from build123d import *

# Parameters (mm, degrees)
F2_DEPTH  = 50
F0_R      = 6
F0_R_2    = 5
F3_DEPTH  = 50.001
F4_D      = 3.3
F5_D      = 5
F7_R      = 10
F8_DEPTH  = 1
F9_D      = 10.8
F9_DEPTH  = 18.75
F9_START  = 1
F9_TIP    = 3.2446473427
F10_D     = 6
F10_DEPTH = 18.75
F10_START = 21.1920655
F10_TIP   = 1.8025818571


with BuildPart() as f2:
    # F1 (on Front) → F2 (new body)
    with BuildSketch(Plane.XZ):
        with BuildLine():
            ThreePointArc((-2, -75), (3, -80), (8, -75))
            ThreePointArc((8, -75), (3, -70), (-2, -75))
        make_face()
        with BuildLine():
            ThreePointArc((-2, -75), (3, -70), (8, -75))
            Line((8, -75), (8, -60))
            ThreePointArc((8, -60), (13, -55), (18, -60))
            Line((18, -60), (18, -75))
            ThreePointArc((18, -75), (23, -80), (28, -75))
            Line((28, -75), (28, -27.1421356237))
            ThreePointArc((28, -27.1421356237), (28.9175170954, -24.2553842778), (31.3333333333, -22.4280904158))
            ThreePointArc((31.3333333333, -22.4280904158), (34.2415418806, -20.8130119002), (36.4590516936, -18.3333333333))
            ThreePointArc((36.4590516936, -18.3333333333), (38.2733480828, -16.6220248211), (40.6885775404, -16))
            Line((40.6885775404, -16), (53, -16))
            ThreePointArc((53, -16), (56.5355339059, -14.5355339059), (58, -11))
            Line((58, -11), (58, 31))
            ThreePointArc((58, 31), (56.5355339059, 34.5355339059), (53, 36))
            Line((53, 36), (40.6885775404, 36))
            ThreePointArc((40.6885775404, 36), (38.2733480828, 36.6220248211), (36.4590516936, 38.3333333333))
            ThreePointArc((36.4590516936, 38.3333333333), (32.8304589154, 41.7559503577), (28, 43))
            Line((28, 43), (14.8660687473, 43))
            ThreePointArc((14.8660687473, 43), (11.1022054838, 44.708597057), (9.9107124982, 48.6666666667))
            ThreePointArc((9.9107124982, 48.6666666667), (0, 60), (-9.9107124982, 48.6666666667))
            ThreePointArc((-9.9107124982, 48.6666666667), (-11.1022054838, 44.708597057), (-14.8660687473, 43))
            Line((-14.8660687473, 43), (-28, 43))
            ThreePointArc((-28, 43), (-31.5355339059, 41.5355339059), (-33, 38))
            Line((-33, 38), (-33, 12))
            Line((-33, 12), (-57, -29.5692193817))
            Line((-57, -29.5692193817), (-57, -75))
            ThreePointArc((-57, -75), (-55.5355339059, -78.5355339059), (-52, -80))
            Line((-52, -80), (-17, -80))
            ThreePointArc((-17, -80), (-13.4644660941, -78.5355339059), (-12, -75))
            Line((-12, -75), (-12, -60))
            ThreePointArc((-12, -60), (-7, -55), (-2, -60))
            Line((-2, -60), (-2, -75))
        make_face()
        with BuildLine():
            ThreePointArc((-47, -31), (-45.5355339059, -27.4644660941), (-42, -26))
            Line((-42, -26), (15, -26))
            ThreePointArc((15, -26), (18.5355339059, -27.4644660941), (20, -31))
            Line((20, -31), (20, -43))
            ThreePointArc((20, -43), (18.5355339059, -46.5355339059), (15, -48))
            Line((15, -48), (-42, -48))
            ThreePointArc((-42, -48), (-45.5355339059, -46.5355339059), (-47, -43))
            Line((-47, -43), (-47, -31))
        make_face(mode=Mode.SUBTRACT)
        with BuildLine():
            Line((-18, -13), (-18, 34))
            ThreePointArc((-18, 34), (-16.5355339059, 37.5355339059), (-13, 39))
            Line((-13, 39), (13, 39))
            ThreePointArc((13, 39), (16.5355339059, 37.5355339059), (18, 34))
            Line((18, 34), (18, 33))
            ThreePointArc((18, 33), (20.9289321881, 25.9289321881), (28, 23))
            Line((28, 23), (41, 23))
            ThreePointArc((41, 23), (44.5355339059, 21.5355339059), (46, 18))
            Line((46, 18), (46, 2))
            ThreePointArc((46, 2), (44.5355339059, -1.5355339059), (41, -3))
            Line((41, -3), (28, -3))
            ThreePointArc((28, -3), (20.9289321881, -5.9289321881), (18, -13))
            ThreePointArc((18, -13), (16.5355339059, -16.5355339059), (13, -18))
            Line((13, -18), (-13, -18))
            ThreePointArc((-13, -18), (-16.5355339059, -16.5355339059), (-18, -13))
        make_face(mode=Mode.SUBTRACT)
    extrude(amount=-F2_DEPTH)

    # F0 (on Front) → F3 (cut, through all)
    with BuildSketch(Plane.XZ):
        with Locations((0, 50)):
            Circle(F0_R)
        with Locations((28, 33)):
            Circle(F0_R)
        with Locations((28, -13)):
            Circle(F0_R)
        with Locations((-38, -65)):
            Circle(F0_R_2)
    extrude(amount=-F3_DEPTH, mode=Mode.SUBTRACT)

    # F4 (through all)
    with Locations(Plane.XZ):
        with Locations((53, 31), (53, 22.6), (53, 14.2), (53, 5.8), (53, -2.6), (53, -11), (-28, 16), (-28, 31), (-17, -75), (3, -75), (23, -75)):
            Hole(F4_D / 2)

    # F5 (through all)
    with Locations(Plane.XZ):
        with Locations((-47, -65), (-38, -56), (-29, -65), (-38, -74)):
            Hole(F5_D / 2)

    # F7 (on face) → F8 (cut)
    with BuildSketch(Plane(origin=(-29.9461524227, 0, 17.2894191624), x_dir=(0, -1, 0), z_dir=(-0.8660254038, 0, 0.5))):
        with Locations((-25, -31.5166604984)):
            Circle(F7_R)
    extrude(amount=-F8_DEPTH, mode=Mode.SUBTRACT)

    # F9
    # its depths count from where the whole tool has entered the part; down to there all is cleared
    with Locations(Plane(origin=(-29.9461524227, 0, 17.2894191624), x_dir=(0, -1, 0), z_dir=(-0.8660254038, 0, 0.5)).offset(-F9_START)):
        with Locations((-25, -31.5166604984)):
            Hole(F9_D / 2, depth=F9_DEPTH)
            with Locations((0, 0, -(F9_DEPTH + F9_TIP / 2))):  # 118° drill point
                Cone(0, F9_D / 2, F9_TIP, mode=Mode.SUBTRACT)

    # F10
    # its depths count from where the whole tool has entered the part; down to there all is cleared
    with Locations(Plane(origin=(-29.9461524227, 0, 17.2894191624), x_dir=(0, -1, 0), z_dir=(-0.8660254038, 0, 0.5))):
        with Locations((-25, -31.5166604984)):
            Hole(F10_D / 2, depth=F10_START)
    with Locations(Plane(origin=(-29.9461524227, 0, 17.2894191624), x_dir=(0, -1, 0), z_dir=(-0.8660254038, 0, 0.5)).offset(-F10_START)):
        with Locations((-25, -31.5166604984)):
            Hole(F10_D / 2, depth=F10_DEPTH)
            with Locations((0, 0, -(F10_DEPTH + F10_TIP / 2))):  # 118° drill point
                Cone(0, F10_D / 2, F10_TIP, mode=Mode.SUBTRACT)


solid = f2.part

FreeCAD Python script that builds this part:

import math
import FreeCAD as App
import Part
import Sketcher
Q = App.Units.Quantity

doc = App.newDocument("Part")
params = doc.addObject("Spreadsheet::Sheet", "Params")
for row, (alias, value) in enumerate([
    ("sketch1_radius", "5 mm"),
    ("sketch1_width", "35 mm"),
    ("sketch1_width2", "57 mm"),
    ("sketch1_width3", "26 mm"),
    ("sketch1_width4", "13 mm"),
    ("pad1_length", "50 mm"),
    ("sketch2_diameter", "12 mm"),
    ("sketch2_diameter2", "10 mm"),
    ("sketch3_diameter", "3.3 mm"),
    ("hole_diameter", "3.3 mm"),
    ("sketch4_diameter", "5 mm"),
    ("hole2_diameter", "5 mm"),
    ("sketch5_diameter", "20 mm"),
    ("pocket2_length", "1 mm"),
    ("sketch6_diameter", "10.8 mm"),
    ("hole3_diameter", "10.8 mm"),
    ("hole3_depth", "18.75 mm"),
    ("sketch7_diameter", "6 mm"),
    ("hole4_diameter", "6 mm"),
    ("hole4_depth", "21.192065 mm"),
    ("sketch8_diameter", "6 mm"),
    ("hole5_diameter", "6 mm"),
    ("hole5_depth", "18.75 mm"),
], start=1):
    params.set(f"A{row}", alias)
    params.set(f"B{row}", "=" + value)
    params.setAlias(f"B{row}", alias)

body = doc.addObject("PartDesign::Body", "Body")

# Sketch on XZ plane
sketch1 = doc.addObject("Sketcher::SketchObject", "Sketch")
body.addObject(sketch1)
sketch1.AttachmentSupport = (doc.XZ_Plane, [""])
sketch1.MapMode = "FlatFace"
sketch1.addGeometry([
    Part.ArcOfCircle(Part.Circle(App.Vector(3, -75, 0), App.Vector(0, 0, 1), 5), math.radians(180), math.radians(360)),  # 0
    Part.LineSegment(App.Vector(8, -75, 0), App.Vector(8, -60, 0)),  # 1
    Part.ArcOfCircle(Part.Circle(App.Vector(13, -60, 0), App.Vector(0, 0, 1), 5), math.radians(0), math.radians(180)),  # 2
    Part.LineSegment(App.Vector(18, -60, 0), App.Vector(18, -75, 0)),  # 3
    Part.ArcOfCircle(Part.Circle(App.Vector(23, -75, 0), App.Vector(0, 0, 1), 5), math.radians(180), math.radians(360)),  # 4
    Part.LineSegment(App.Vector(28, -75, 0), App.Vector(28, -27.1, 0)),  # 5
    Part.ArcOfCircle(Part.Circle(App.Vector(33, -27.1, 0), App.Vector(0, 0, 1), 5), math.radians(109), math.radians(180)),  # 6
    Part.ArcOfCircle(Part.Circle(App.Vector(28, -13, 0), App.Vector(0, 0, 1), 10), math.radians(-71), math.radians(-32)),  # 7
    Part.ArcOfCircle(Part.Circle(App.Vector(40.7, -21, 0), App.Vector(0, 0, 1), 5), math.radians(90), math.radians(148)),  # 8
    Part.LineSegment(App.Vector(40.7, -16, 0), App.Vector(53, -16, 0)),  # 9
    Part.ArcOfCircle(Part.Circle(App.Vector(53, -11, 0), App.Vector(0, 0, 1), 5), math.radians(-90), math.radians(0)),  # 10
    Part.LineSegment(App.Vector(58, -11, 0), App.Vector(58, 31, 0)),  # 11
    Part.ArcOfCircle(Part.Circle(App.Vector(53, 31, 0), App.Vector(0, 0, 1), 5), math.radians(0), math.radians(90)),  # 12
    Part.LineSegment(App.Vector(53, 36, 0), App.Vector(40.7, 36, 0)),  # 13
    Part.ArcOfCircle(Part.Circle(App.Vector(40.7, 41, 0), App.Vector(0, 0, 1), 5), math.radians(-148), math.radians(-90)),  # 14
    Part.ArcOfCircle(Part.Circle(App.Vector(28, 33, 0), App.Vector(0, 0, 1), 10), math.radians(32), math.radians(90)),  # 15
    Part.LineSegment(App.Vector(28, 43, 0), App.Vector(14.9, 43, 0)),  # 16
    Part.ArcOfCircle(Part.Circle(App.Vector(14.9, 48, 0), App.Vector(0, 0, 1), 5), math.radians(172), math.radians(270)),  # 17
    Part.ArcOfCircle(Part.Circle(App.Vector(0, 50, 0), App.Vector(0, 0, 1), 10), math.radians(-8), math.radians(188)),  # 18
    Part.ArcOfCircle(Part.Circle(App.Vector(-14.9, 48, 0), App.Vector(0, 0, 1), 5), math.radians(-90), math.radians(8)),  # 19
    Part.LineSegment(App.Vector(-14.9, 43, 0), App.Vector(-28, 43, 0)),  # 20
    Part.ArcOfCircle(Part.Circle(App.Vector(-28, 38, 0), App.Vector(0, 0, 1), 5), math.radians(90), math.radians(180)),  # 21
    Part.LineSegment(App.Vector(-33, 38, 0), App.Vector(-33, 12, 0)),  # 22
    Part.LineSegment(App.Vector(-33, 12, 0), App.Vector(-57, -29.6, 0)),  # 23
    Part.LineSegment(App.Vector(-57, -29.6, 0), App.Vector(-57, -75, 0)),  # 24
    Part.ArcOfCircle(Part.Circle(App.Vector(-52, -75, 0), App.Vector(0, 0, 1), 5), math.radians(180), math.radians(270)),  # 25
    Part.LineSegment(App.Vector(-52, -80, 0), App.Vector(-17, -80, 0)),  # 26
    Part.ArcOfCircle(Part.Circle(App.Vector(-17, -75, 0), App.Vector(0, 0, 1), 5), math.radians(-90), math.radians(0)),  # 27
    Part.LineSegment(App.Vector(-12, -75, 0), App.Vector(-12, -60, 0)),  # 28
    Part.ArcOfCircle(Part.Circle(App.Vector(-7, -60, 0), App.Vector(0, 0, 1), 5), math.radians(0), math.radians(180)),  # 29
    Part.LineSegment(App.Vector(-2, -60, 0), App.Vector(-2, -75, 0)),  # 30
    Part.LineSegment(App.Vector(-47, -43, 0), App.Vector(-47, -31, 0)),  # 31
    Part.ArcOfCircle(Part.Circle(App.Vector(-42, -31, 0), App.Vector(0, 0, 1), 5), math.radians(90), math.radians(180)),  # 32
    Part.LineSegment(App.Vector(-42, -26, 0), App.Vector(15, -26, 0)),  # 33
    Part.ArcOfCircle(Part.Circle(App.Vector(15, -31, 0), App.Vector(0, 0, 1), 5), math.radians(0), math.radians(90)),  # 34
    Part.LineSegment(App.Vector(20, -31, 0), App.Vector(20, -43, 0)),  # 35
    Part.ArcOfCircle(Part.Circle(App.Vector(15, -43, 0), App.Vector(0, 0, 1), 5), math.radians(-90), math.radians(0)),  # 36
    Part.LineSegment(App.Vector(15, -48, 0), App.Vector(-42, -48, 0)),  # 37
    Part.ArcOfCircle(Part.Circle(App.Vector(-42, -43, 0), App.Vector(0, 0, 1), 5), math.radians(180), math.radians(270)),  # 38
    Part.ArcOfCircle(Part.Circle(App.Vector(-13, -13, 0), App.Vector(0, 0, 1), 5), math.radians(180), math.radians(270)),  # 39
    Part.LineSegment(App.Vector(-18, -13, 0), App.Vector(-18, 34, 0)),  # 40
    Part.ArcOfCircle(Part.Circle(App.Vector(-13, 34, 0), App.Vector(0, 0, 1), 5), math.radians(90), math.radians(180)),  # 41
    Part.LineSegment(App.Vector(-13, 39, 0), App.Vector(13, 39, 0)),  # 42
    Part.ArcOfCircle(Part.Circle(App.Vector(13, 34, 0), App.Vector(0, 0, 1), 5), math.radians(0), math.radians(90)),  # 43
    Part.LineSegment(App.Vector(18, 34, 0), App.Vector(18, 33, 0)),  # 44
    Part.ArcOfCircle(Part.Circle(App.Vector(28, 33, 0), App.Vector(0, 0, 1), 10), math.radians(180), math.radians(270)),  # 45
    Part.LineSegment(App.Vector(28, 23, 0), App.Vector(41, 23, 0)),  # 46
    Part.ArcOfCircle(Part.Circle(App.Vector(41, 18, 0), App.Vector(0, 0, 1), 5), math.radians(0), math.radians(90)),  # 47
    Part.LineSegment(App.Vector(46, 18, 0), App.Vector(46, 2, 0)),  # 48
    Part.ArcOfCircle(Part.Circle(App.Vector(41, 2, 0), App.Vector(0, 0, 1), 5), math.radians(-90), math.radians(0)),  # 49
    Part.LineSegment(App.Vector(41, -3, 0), App.Vector(28, -3, 0)),  # 50
    Part.ArcOfCircle(Part.Circle(App.Vector(28, -13, 0), App.Vector(0, 0, 1), 10), math.radians(90), math.radians(180)),  # 51
    Part.ArcOfCircle(Part.Circle(App.Vector(13, -13, 0), App.Vector(0, 0, 1), 5), math.radians(-90), math.radians(0)),  # 52
    Part.LineSegment(App.Vector(13, -18, 0), App.Vector(-13, -18, 0)),  # 53
], False)
sketch1.addConstraint([
    Sketcher.Constraint("Tangent", 0, 2, 1, 1),
    Sketcher.Constraint("Tangent", 1, 2, 2, 2),
    Sketcher.Constraint("Tangent", 2, 1, 3, 1),
    Sketcher.Constraint("Tangent", 3, 2, 4, 1),
    Sketcher.Constraint("Tangent", 4, 2, 5, 1),
    Sketcher.Constraint("Tangent", 5, 2, 6, 2),
    Sketcher.Constraint("Tangent", 6, 1, 7, 1),
    Sketcher.Constraint("Tangent", 7, 2, 8, 2),
    Sketcher.Constraint("Tangent", 8, 1, 9, 1),
    Sketcher.Constraint("Tangent", 9, 2, 10, 1),
    Sketcher.Constraint("Tangent", 10, 2, 11, 1),
    Sketcher.Constraint("Tangent", 11, 2, 12, 1),
    Sketcher.Constraint("Tangent", 12, 2, 13, 1),
    Sketcher.Constraint("Tangent", 13, 2, 14, 2),
    Sketcher.Constraint("Tangent", 14, 1, 15, 1),
    Sketcher.Constraint("Tangent", 15, 2, 16, 1),
    Sketcher.Constraint("Tangent", 16, 2, 17, 2),
    Sketcher.Constraint("Tangent", 17, 1, 18, 1),
    Sketcher.Constraint("Tangent", 18, 2, 19, 2),
    Sketcher.Constraint("Tangent", 19, 1, 20, 1),
    Sketcher.Constraint("Tangent", 20, 2, 21, 1),
    Sketcher.Constraint("Tangent", 21, 2, 22, 1),
    Sketcher.Constraint("Coincident", 22, 2, 23, 1),
    Sketcher.Constraint("Coincident", 23, 2, 24, 1),
    Sketcher.Constraint("Tangent", 24, 2, 25, 1),
    Sketcher.Constraint("Tangent", 25, 2, 26, 1),
    Sketcher.Constraint("Tangent", 26, 2, 27, 1),
    Sketcher.Constraint("Tangent", 27, 2, 28, 1),
    Sketcher.Constraint("Tangent", 28, 2, 29, 2),
    Sketcher.Constraint("Tangent", 29, 1, 30, 1),
    Sketcher.Constraint("Tangent", 30, 2, 0, 1),
    Sketcher.Constraint("Tangent", 31, 2, 32, 2),
    Sketcher.Constraint("Tangent", 32, 1, 33, 1),
    Sketcher.Constraint("Tangent", 33, 2, 34, 2),
    Sketcher.Constraint("Tangent", 34, 1, 35, 1),
    Sketcher.Constraint("Tangent", 35, 2, 36, 2),
    Sketcher.Constraint("Tangent", 36, 1, 37, 1),
    Sketcher.Constraint("Tangent", 37, 2, 38, 2),
    Sketcher.Constraint("Tangent", 38, 1, 31, 1),
    Sketcher.Constraint("Tangent", 39, 1, 40, 1),
    Sketcher.Constraint("Tangent", 40, 2, 41, 2),
    Sketcher.Constraint("Tangent", 41, 1, 42, 1),
    Sketcher.Constraint("Tangent", 42, 2, 43, 2),
    Sketcher.Constraint("Tangent", 43, 1, 44, 1),
    Sketcher.Constraint("Tangent", 44, 2, 45, 1),
    Sketcher.Constraint("Tangent", 45, 2, 46, 1),
    Sketcher.Constraint("Tangent", 46, 2, 47, 2),
    Sketcher.Constraint("Tangent", 47, 1, 48, 1),
    Sketcher.Constraint("Tangent", 48, 2, 49, 2),
    Sketcher.Constraint("Tangent", 49, 1, 50, 1),
    Sketcher.Constraint("Tangent", 50, 2, 51, 1),
    Sketcher.Constraint("Tangent", 51, 2, 52, 2),
    Sketcher.Constraint("Tangent", 52, 1, 53, 1),
    Sketcher.Constraint("Tangent", 53, 2, 39, 2),
    Sketcher.Constraint("Vertical", 1),
    Sketcher.Constraint("Vertical", 3),
    Sketcher.Constraint("Vertical", 5),
    Sketcher.Constraint("Horizontal", 9),
    Sketcher.Constraint("Vertical", 11),
    Sketcher.Constraint("Horizontal", 13),
    Sketcher.Constraint("Horizontal", 16),
    Sketcher.Constraint("Horizontal", 20),
    Sketcher.Constraint("Vertical", 22),
    Sketcher.Constraint("Vertical", 24),
    Sketcher.Constraint("Horizontal", 26),
    Sketcher.Constraint("Vertical", 28),
    Sketcher.Constraint("Vertical", 30),
    Sketcher.Constraint("Vertical", 31),
    Sketcher.Constraint("Horizontal", 33),
    Sketcher.Constraint("Vertical", 35),
    Sketcher.Constraint("Horizontal", 37),
    Sketcher.Constraint("Vertical", 40),
    Sketcher.Constraint("Horizontal", 42),
    Sketcher.Constraint("Vertical", 44),
    Sketcher.Constraint("Horizontal", 46),
    Sketcher.Constraint("Vertical", 48),
    Sketcher.Constraint("Horizontal", 50),
    Sketcher.Constraint("Horizontal", 53),
    Sketcher.Constraint("Coincident", 45, 3, 15, 3),
    Sketcher.Constraint("Coincident", 51, 3, 7, 3),
    Sketcher.Constraint("Equal", 0, 2),
    Sketcher.Constraint("Equal", 2, 4),
    Sketcher.Constraint("Equal", 4, 6),
    Sketcher.Constraint("Equal", 6, 8),
    Sketcher.Constraint("Equal", 8, 10),
    Sketcher.Constraint("Equal", 10, 12),
    Sketcher.Constraint("Equal", 12, 14),
    Sketcher.Constraint("Equal", 7, 15),
    Sketcher.Constraint("Equal", 14, 17),
    Sketcher.Constraint("Equal", 15, 18),
    Sketcher.Constraint("Equal", 17, 19),
    Sketcher.Constraint("Equal", 19, 21),
    Sketcher.Constraint("Equal", 21, 25),
    Sketcher.Constraint("Equal", 25, 27),
    Sketcher.Constraint("Equal", 27, 29),
    Sketcher.Constraint("Equal", 29, 32),
    Sketcher.Constraint("Equal", 32, 34),
    Sketcher.Constraint("Equal", 34, 36),
    Sketcher.Constraint("Equal", 36, 38),
    Sketcher.Constraint("Equal", 38, 39),
    Sketcher.Constraint("Equal", 39, 41),
    Sketcher.Constraint("Equal", 41, 43),
    Sketcher.Constraint("Equal", 18, 45),
    Sketcher.Constraint("Equal", 43, 47),
    Sketcher.Constraint("Equal", 47, 49),
    Sketcher.Constraint("Equal", 45, 51),
    Sketcher.Constraint("Equal", 49, 52),
    Sketcher.Constraint("Symmetric", 17, 3, 19, 3, -2),
    Sketcher.Constraint("Symmetric", 39, 1, 51, 2, -2),
    Sketcher.Constraint("Horizontal", 0, 3, 4, 3),
    Sketcher.Constraint("Horizontal", 4, 3, 25, 3),
    Sketcher.Constraint("Horizontal", 2, 3, 29, 3),
    Sketcher.Constraint("Vertical", 8, 3, 14, 3),
    Sketcher.Constraint("Vertical", 7, 3, 15, 3),
    Sketcher.Constraint("Vertical", 2, 3, 43, 3),
    Sketcher.Constraint("Vertical", 51, 3, 4, 2),
    Sketcher.Constraint("Equal", 16, 20),
    Sketcher.Constraint("Equal", 53, 22),
    Sketcher.Constraint("Radius", 0, 5.0),
    Sketcher.Constraint("DistanceX", 26, 1, 26, 2, 35.0),
    Sketcher.Constraint("DistanceX", 33, 1, 33, 2, 57.0),
    Sketcher.Constraint("DistanceX", 42, 1, 42, 2, 26.0),
    Sketcher.Constraint("DistanceX", 46, 1, 46, 2, 13.0),
    Sketcher.Constraint("DistanceY", 1, 1, 1, 2, 15.0),
    Sketcher.Constraint("DistanceY", 11, 1, 11, 2, 42.0),
    Sketcher.Constraint("DistanceY", 31, 1, 31, 2, 12.0),
    Sketcher.Constraint("DistanceY", 40, 1, 40, 2, 47.0),
    Sketcher.Constraint("DistanceY", 44, 2, 44, 1, 1.0),
    Sketcher.Constraint("Angle", 23, Q("-120 deg")),
    Sketcher.Constraint("DistanceY", 0, 3, -1, 1, 75.0),
    Sketcher.Constraint("DistanceY", 7, 3, -1, 1, 13.0),
    Sketcher.Constraint("DistanceX", -1, 1, 10, 3, 53.0),
    Sketcher.Constraint("DistanceY", -1, 1, 18, 3, 50.0),
    Sketcher.Constraint("DistanceX", 32, 3, -1, 1, 42.0),
    Sketcher.Constraint("DistanceY", 32, 3, -1, 1, 31.0),
])
sketch1.setExpression("Constraints[118]", "Params.sketch1_radius")
sketch1.setExpression("Constraints[119]", "Params.sketch1_width")
sketch1.setExpression("Constraints[120]", "Params.sketch1_width2")
sketch1.setExpression("Constraints[121]", "Params.sketch1_width3")
sketch1.setExpression("Constraints[122]", "Params.sketch1_width4")
pad1 = doc.addObject("PartDesign::Pad", "Pad")
body.addObject(pad1)
pad1.Profile = sketch1
pad1.setExpression("Length", "Params.pad1_length")
pad1.Reversed = True

# Sketch on XZ plane
sketch2 = doc.addObject("Sketcher::SketchObject", "Sketch001")
body.addObject(sketch2)
sketch2.AttachmentSupport = (doc.XZ_Plane, [""])
sketch2.MapMode = "FlatFace"
sketch2.addGeometry([
    Part.Circle(App.Vector(0, 50, 0), App.Vector(0, 0, 1), 6),
    Part.Circle(App.Vector(28, 33, 0), App.Vector(0, 0, 1), 6),
    Part.Circle(App.Vector(28, -13, 0), App.Vector(0, 0, 1), 6),
    Part.Circle(App.Vector(-38, -65, 0), App.Vector(0, 0, 1), 5),
], False)
sketch2.addConstraint([
    Sketcher.Constraint("Equal", 0, 1),
    Sketcher.Constraint("Equal", 1, 2),
    Sketcher.Constraint("PointOnObject", 0, 3, -2),
    Sketcher.Constraint("Vertical", 1, 3, 2, 3),
    Sketcher.Constraint("Diameter", 0, 12.0),
    Sketcher.Constraint("Diameter", 3, 10.0),
    Sketcher.Constraint("DistanceY", -1, 1, 0, 3, 50.0),
    Sketcher.Constraint("DistanceX", -1, 1, 1, 3, 28.0),
    Sketcher.Constraint("DistanceY", -1, 1, 1, 3, 33.0),
    Sketcher.Constraint("DistanceY", 2, 3, -1, 1, 13.0),
    Sketcher.Constraint("DistanceX", 3, 3, -1, 1, 38.0),
    Sketcher.Constraint("DistanceY", 3, 3, -1, 1, 65.0),
])
sketch2.setExpression("Constraints[4]", "Params.sketch2_diameter")
sketch2.setExpression("Constraints[5]", "Params.sketch2_diameter2")
pocket1 = doc.addObject("PartDesign::Pocket", "Pocket")
body.addObject(pocket1)
pocket1.Profile = sketch2
pocket1.Type = "ThroughAll"

# Sketch on XZ plane
sketch3 = doc.addObject("Sketcher::SketchObject", "Sketch002")
body.addObject(sketch3)
sketch3.AttachmentSupport = (doc.XZ_Plane, [""])
sketch3.MapMode = "FlatFace"
sketch3.addGeometry([
    Part.Circle(App.Vector(53, 31, 0), App.Vector(0, 0, 1), 1.6),  # 0
    Part.Circle(App.Vector(53, 22.6, 0), App.Vector(0, 0, 1), 1.6),  # 1
    Part.Circle(App.Vector(53, 14.2, 0), App.Vector(0, 0, 1), 1.6),  # 2
    Part.Circle(App.Vector(53, 5.8, 0), App.Vector(0, 0, 1), 1.6),  # 3
    Part.Circle(App.Vector(53, -2.6, 0), App.Vector(0, 0, 1), 1.6),  # 4
    Part.Circle(App.Vector(53, -11, 0), App.Vector(0, 0, 1), 1.6),  # 5
    Part.Circle(App.Vector(-28, 16, 0), App.Vector(0, 0, 1), 1.6),  # 6
    Part.Circle(App.Vector(-28, 31, 0), App.Vector(0, 0, 1), 1.6),  # 7
    Part.Circle(App.Vector(-17, -75, 0), App.Vector(0, 0, 1), 1.6),  # 8
    Part.Circle(App.Vector(3, -75, 0), App.Vector(0, 0, 1), 1.6),  # 9
    Part.Circle(App.Vector(23, -75, 0), App.Vector(0, 0, 1), 1.6),  # 10
], False)
sketch3.addConstraint([
    Sketcher.Constraint("Equal", 0, 1),
    Sketcher.Constraint("Equal", 1, 2),
    Sketcher.Constraint("Equal", 2, 3),
    Sketcher.Constraint("Equal", 3, 4),
    Sketcher.Constraint("Equal", 4, 5),
    Sketcher.Constraint("Equal", 5, 6),
    Sketcher.Constraint("Equal", 6, 7),
    Sketcher.Constraint("Equal", 7, 8),
    Sketcher.Constraint("Equal", 8, 9),
    Sketcher.Constraint("Equal", 9, 10),
    Sketcher.Constraint("Horizontal", 0, 3, 7, 3),
    Sketcher.Constraint("Horizontal", 8, 3, 9, 3),
    Sketcher.Constraint("Horizontal", 9, 3, 10, 3),
    Sketcher.Constraint("Vertical", 0, 3, 1, 3),
    Sketcher.Constraint("Vertical", 1, 3, 2, 3),
    Sketcher.Constraint("Vertical", 2, 3, 3, 3),
    Sketcher.Constraint("Vertical", 3, 3, 4, 3),
    Sketcher.Constraint("Vertical", 4, 3, 5, 3),
    Sketcher.Constraint("Vertical", 6, 3, 7, 3),
    Sketcher.Constraint("Diameter", 0, 3.3),
    Sketcher.Constraint("DistanceX", -1, 1, 0, 3, 53.0),
    Sketcher.Constraint("DistanceY", -1, 1, 0, 3, 31.0),
    Sketcher.Constraint("DistanceY", 5, 3, -1, 1, 11.0),
    Sketcher.Constraint("DistanceX", 6, 3, -1, 1, 28.0),
    Sketcher.Constraint("DistanceY", -1, 1, 6, 3, 16.0),
    Sketcher.Constraint("DistanceX", 8, 3, -1, 1, 17.0),
    Sketcher.Constraint("DistanceY", 8, 3, -1, 1, 75.0),
    Sketcher.Constraint("DistanceX", -1, 1, 9, 3, 3.0),
    Sketcher.Constraint("DistanceX", -1, 1, 10, 3, 23.0),
    Sketcher.Constraint("DistanceY", -1, 1, 1, 3, 22.6),
    Sketcher.Constraint("DistanceY", -1, 1, 2, 3, 14.2),
    Sketcher.Constraint("DistanceY", -1, 1, 3, 3, 5.8),
    Sketcher.Constraint("DistanceY", 4, 3, -1, 1, 2.6),
])
sketch3.setExpression("Constraints[19]", "Params.sketch3_diameter")
doc.recompute()
hole = doc.addObject("PartDesign::Hole", "Hole")
body.addObject(hole)
hole.Profile = sketch3
hole.ThreadType = "None"
hole.setExpression("Diameter", "Params.hole_diameter")
hole.DepthType = "ThroughAll"

# Sketch on XZ plane
sketch4 = doc.addObject("Sketcher::SketchObject", "Sketch003")
body.addObject(sketch4)
sketch4.AttachmentSupport = (doc.XZ_Plane, [""])
sketch4.MapMode = "FlatFace"
sketch4.addGeometry([
    Part.Circle(App.Vector(-47, -65, 0), App.Vector(0, 0, 1), 2.5),
    Part.Circle(App.Vector(-38, -56, 0), App.Vector(0, 0, 1), 2.5),
    Part.Circle(App.Vector(-29, -65, 0), App.Vector(0, 0, 1), 2.5),
    Part.Circle(App.Vector(-38, -74, 0), App.Vector(0, 0, 1), 2.5),
], False)
sketch4.addConstraint([
    Sketcher.Constraint("Equal", 0, 1),
    Sketcher.Constraint("Equal", 1, 2),
    Sketcher.Constraint("Equal", 2, 3),
    Sketcher.Constraint("Horizontal", 0, 3, 2, 3),
    Sketcher.Constraint("Vertical", 1, 3, 3, 3),
    Sketcher.Constraint("Diameter", 0, 5.0),
    Sketcher.Constraint("DistanceX", 0, 3, -1, 1, 47.0),
    Sketcher.Constraint("DistanceY", 0, 3, -1, 1, 65.0),
    Sketcher.Constraint("DistanceX", 1, 3, -1, 1, 38.0),
    Sketcher.Constraint("DistanceY", 1, 3, -1, 1, 56.0),
    Sketcher.Constraint("DistanceX", 2, 3, -1, 1, 29.0),
    Sketcher.Constraint("DistanceY", 3, 3, -1, 1, 74.0),
])
sketch4.setExpression("Constraints[5]", "Params.sketch4_diameter")
doc.recompute()
hole2 = doc.addObject("PartDesign::Hole", "Hole001")
body.addObject(hole2)
hole2.Profile = sketch4
hole2.ThreadType = "None"
hole2.setExpression("Diameter", "Params.hole2_diameter")
hole2.DepthType = "ThroughAll"

# Sketch on an angled plane
sketch5 = doc.addObject("Sketcher::SketchObject", "Sketch004")
body.addObject(sketch5)
sketch5.Placement = App.Placement(App.Vector(-29.946152, 0, 17.289419), App.Rotation(App.Vector(0, -1, 0), App.Vector(0.5, 0, 0.866025404), App.Vector(-0.866025404, 0, 0.5), "ZXY"))
sketch5.addGeometry(Part.Circle(App.Vector(-25, -32, 0), App.Vector(0, 0, 1), 10), False)
sketch5.addConstraint([
    Sketcher.Constraint("Diameter", 0, 20.0),
    Sketcher.Constraint("DistanceX", 0, 3, -1, 1, 25.0),
    Sketcher.Constraint("DistanceY", 0, 3, -1, 1, 31.516661),
])
sketch5.setExpression("Constraints[0]", "Params.sketch5_diameter")
pocket2 = doc.addObject("PartDesign::Pocket", "Pocket001")
body.addObject(pocket2)
pocket2.Profile = sketch5
pocket2.setExpression("Length", "Params.pocket2_length")

# Sketch on an angled plane
sketch6 = doc.addObject("Sketcher::SketchObject", "Sketch005")
body.addObject(sketch6)
sketch6.Placement = App.Placement(App.Vector(-29.080127, 0, 16.789419), App.Rotation(App.Vector(0, -1, 0), App.Vector(0.5, 0, 0.866025404), App.Vector(-0.866025404, 0, 0.5), "ZXY"))
sketch6.addGeometry(Part.Circle(App.Vector(-25, -32, 0), App.Vector(0, 0, 1), 5), False)
sketch6.addConstraint([
    Sketcher.Constraint("Diameter", 0, 10.8),
    Sketcher.Constraint("DistanceX", 0, 3, -1, 1, 25.0),
    Sketcher.Constraint("DistanceY", 0, 3, -1, 1, 31.516661),
])
sketch6.setExpression("Constraints[0]", "Params.sketch6_diameter")
doc.recompute()
hole3 = doc.addObject("PartDesign::Hole", "Hole002")
body.addObject(hole3)
hole3.Profile = sketch6
hole3.ThreadType = "None"
hole3.setExpression("Diameter", "Params.hole3_diameter")
hole3.DepthType = "Dimension"
hole3.setExpression("Depth", "Params.hole3_depth")
hole3.DrillPoint = "Angled"
hole3.DrillPointAngle = 118

# Sketch on an angled plane
sketch7 = doc.addObject("Sketcher::SketchObject", "Sketch006")
body.addObject(sketch7)
sketch7.Placement = App.Placement(App.Vector(-29.946152, 0, 17.289419), App.Rotation(App.Vector(0, -1, 0), App.Vector(0.5, 0, 0.866025404), App.Vector(-0.866025404, 0, 0.5), "ZXY"))
sketch7.addGeometry(Part.Circle(App.Vector(-25, -31.5, 0), App.Vector(0, 0, 1), 3), False)
sketch7.addConstraint([
    Sketcher.Constraint("Diameter", 0, 6.0),
    Sketcher.Constraint("DistanceX", 0, 3, -1, 1, 25.0),
    Sketcher.Constraint("DistanceY", 0, 3, -1, 1, 31.516661),
])
sketch7.setExpression("Constraints[0]", "Params.sketch7_diameter")
doc.recompute()
hole4 = doc.addObject("PartDesign::Hole", "Hole003")
body.addObject(hole4)
hole4.Profile = sketch7
hole4.ThreadType = "None"
hole4.setExpression("Diameter", "Params.hole4_diameter")
hole4.DepthType = "Dimension"
hole4.setExpression("Depth", "Params.hole4_depth")
hole4.DrillPoint = "Flat"

# Sketch on an angled plane
sketch8 = doc.addObject("Sketcher::SketchObject", "Sketch007")
body.addObject(sketch8)
sketch8.Placement = App.Placement(App.Vector(-11.593285, 0, 6.693386), App.Rotation(App.Vector(0, -1, 0), App.Vector(0.5, 0, 0.866025404), App.Vector(-0.866025404, 0, 0.5), "ZXY"))
sketch8.addGeometry(Part.Circle(App.Vector(-25, -31.5, 0), App.Vector(0, 0, 1), 3), False)
sketch8.addConstraint([
    Sketcher.Constraint("Diameter", 0, 6.0),
    Sketcher.Constraint("DistanceX", 0, 3, -1, 1, 25.0),
    Sketcher.Constraint("DistanceY", 0, 3, -1, 1, 31.516661),
])
sketch8.setExpression("Constraints[0]", "Params.sketch8_diameter")
doc.recompute()
hole5 = doc.addObject("PartDesign::Hole", "Hole004")
body.addObject(hole5)
hole5.Profile = sketch8
hole5.ThreadType = "None"
hole5.setExpression("Diameter", "Params.hole5_diameter")
hole5.DepthType = "Dimension"
hole5.setExpression("Depth", "Params.hole5_depth")
hole5.DrillPoint = "Angled"
hole5.DrillPointAngle = 118

doc.recompute()
